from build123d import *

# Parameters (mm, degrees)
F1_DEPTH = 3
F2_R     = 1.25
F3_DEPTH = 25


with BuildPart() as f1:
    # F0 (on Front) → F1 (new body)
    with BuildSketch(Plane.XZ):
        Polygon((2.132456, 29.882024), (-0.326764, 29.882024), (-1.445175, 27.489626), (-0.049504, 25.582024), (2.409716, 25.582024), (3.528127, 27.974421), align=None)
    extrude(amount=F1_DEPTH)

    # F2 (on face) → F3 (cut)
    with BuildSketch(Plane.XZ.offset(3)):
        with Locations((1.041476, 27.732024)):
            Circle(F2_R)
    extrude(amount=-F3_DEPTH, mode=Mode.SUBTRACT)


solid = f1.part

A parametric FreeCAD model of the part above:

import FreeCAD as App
import Part
import Sketcher

V = App.Vector
Q = App.Units.Quantity

doc = App.newDocument("Part")
params = doc.addObject("Spreadsheet::Sheet", "Params")
for row, (alias, value) in enumerate([
    ("pad1_length", "3 mm"),
    ("sketch2_diameter", "2.5 mm"),
    ("pocket1_length", "25 mm"),
], start=1):
    params.set(f"A{row}", alias)
    params.set(f"B{row}", "=" + value)
    params.setAlias(f"B{row}", alias)

body = doc.addObject("PartDesign::Body", "Body")

sketch1 = doc.addObject("Sketcher::SketchObject", "Sketch")
body.addObject(sketch1)
sketch1.AttachmentSupport = (doc.XZ_Plane, [""])
sketch1.MapMode = "FlatFace"
sketch1.addGeometry([
    Part.LineSegment(V(2.1, 29.9, 0), V(-0.3, 29.9, 0)),
    Part.LineSegment(V(-0.3, 29.9, 0), V(-1.4, 27.5, 0)),
    Part.LineSegment(V(-1.4, 27.5, 0), V(0, 25.6, 0)),
    Part.LineSegment(V(0, 25.6, 0), V(2.4, 25.6, 0)),
    Part.LineSegment(V(2.4, 25.6, 0), V(3.5, 28, 0)),
    Part.LineSegment(V(3.5, 28, 0), V(2.1, 29.9, 0)),
], False)
sketch1.addConstraint([
    Sketcher.Constraint("Coincident", 0, 2, 1, 1),
    Sketcher.Constraint("Coincident", 1, 2, 2, 1),
    Sketcher.Constraint("Coincident", 2, 2, 3, 1),
    Sketcher.Constraint("Coincident", 3, 2, 4, 1),
    Sketcher.Constraint("Coincident", 4, 2, 5, 1),
    Sketcher.Constraint("Coincident", 5, 2, 0, 1),
    Sketcher.Constraint("Horizontal", 0),
    Sketcher.Constraint("Horizontal", 3),
    Sketcher.Constraint("Parallel", 1, 4),
    Sketcher.Constraint("Parallel", 2, 5),
    Sketcher.Constraint("Equal", 0, 3),
    Sketcher.Constraint("DistanceY", 2, 2, 0, 2, Q("4.3 mm")),
    Sketcher.Constraint("DistanceX", 0, 2, 0, 1, Q("2.45922 mm")),
    Sketcher.Constraint("DistanceY", 1, 2, 0, 2, Q("2.392398 mm")),
    Sketcher.Constraint("Distance", 1, Q("2.640911 mm")),
    Sketcher.Constraint("Distance", 2, Q("2.36365 mm")),
    Sketcher.Constraint("DistanceY", -1, 1, 4, 2, Q("27.974421 mm")),
    Sketcher.Constraint("DistanceX", 0, 2, -1, 1, Q("0.326764 mm")),
])
pad1 = doc.addObject("PartDesign::Pad", "Pad")
body.addObject(pad1)
pad1.Profile = sketch1
pad1.setExpression("Length", "Params.pad1_length")

sketch2 = doc.addObject("Sketcher::SketchObject", "Sketch001")
body.addObject(sketch2)
sketch2.AttachmentSupport = (doc.XZ_Plane, [""])
sketch2.MapMode = "FlatFace"
sketch2.AttachmentOffset = App.Placement(V(0, 0, 3), App.Rotation())
sketch2.addGeometry(Part.Circle(V(1, 27.7, 0), V(0, 0, 1), 1.2), False)
sketch2.addConstraint([
    Sketcher.Constraint("Diameter", 0, Q("2.5 mm")),
    Sketcher.Constraint("DistanceX", -1, 1, 0, 3, Q("1.041476 mm")),
    Sketcher.Constraint("DistanceY", -1, 1, 0, 3, Q("27.732024 mm")),
])
sketch2.setExpression("Constraints[0]", "Params.sketch2_diameter")
pocket1 = doc.addObject("PartDesign::Pocket", "Pocket")
body.addObject(pocket1)
pocket1.Profile = sketch2
pocket1.setExpression("Length", "Params.pocket1_length")

doc.recompute()
